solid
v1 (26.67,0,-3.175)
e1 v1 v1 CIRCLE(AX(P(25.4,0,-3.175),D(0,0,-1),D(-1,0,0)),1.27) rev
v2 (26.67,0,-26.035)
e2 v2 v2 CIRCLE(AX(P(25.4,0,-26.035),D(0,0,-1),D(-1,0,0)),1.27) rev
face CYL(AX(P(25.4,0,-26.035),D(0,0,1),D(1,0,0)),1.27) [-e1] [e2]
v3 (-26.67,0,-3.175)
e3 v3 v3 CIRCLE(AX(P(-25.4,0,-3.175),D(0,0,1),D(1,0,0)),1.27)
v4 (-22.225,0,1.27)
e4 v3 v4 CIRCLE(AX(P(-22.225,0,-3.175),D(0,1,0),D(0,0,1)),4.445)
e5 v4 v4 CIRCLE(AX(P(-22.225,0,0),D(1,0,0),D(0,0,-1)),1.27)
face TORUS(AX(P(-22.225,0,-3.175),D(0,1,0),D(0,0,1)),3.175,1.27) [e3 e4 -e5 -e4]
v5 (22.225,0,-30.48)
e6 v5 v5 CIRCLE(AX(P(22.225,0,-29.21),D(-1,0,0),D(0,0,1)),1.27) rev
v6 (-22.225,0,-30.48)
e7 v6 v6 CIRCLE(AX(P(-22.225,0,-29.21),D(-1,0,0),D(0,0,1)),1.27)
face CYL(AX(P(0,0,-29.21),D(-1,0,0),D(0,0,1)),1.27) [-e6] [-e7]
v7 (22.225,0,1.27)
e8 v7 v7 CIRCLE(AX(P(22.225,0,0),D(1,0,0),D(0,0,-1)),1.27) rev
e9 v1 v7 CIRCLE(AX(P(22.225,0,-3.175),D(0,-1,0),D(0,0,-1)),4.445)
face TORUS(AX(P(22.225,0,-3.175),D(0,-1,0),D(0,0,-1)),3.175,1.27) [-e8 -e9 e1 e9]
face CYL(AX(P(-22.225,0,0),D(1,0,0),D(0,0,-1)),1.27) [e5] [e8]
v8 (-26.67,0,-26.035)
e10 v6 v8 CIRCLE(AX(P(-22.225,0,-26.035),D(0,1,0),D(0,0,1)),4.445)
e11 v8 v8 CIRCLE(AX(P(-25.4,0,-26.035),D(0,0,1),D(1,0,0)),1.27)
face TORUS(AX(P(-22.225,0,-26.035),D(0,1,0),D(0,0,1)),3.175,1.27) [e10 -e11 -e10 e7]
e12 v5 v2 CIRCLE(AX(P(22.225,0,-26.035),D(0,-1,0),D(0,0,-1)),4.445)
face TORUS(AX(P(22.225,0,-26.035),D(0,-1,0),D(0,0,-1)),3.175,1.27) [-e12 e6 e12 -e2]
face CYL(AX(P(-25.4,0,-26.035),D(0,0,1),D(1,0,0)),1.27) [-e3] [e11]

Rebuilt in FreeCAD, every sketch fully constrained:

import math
import FreeCAD as App
import Part
import Sketcher
from FreeCAD import Vector
Q = App.Units.Quantity

doc = App.newDocument("Part")
body = doc.addObject("PartDesign::Body", "Body")

# Sketch on YZ plane
sketch1 = body.newObject("Sketcher::SketchObject", "Sketch")
sketch1.AttachmentSupport = (doc.getObject("YZ_Plane"), [""])
sketch1.MapMode = "FlatFace"
sketch1.addGeometry(Part.Circle(Vector(0, 0, 0), Vector(0, 0, 1), 1.3), False)
sketch1.addConstraint(Sketcher.Constraint("Coincident", 0, 3, -1, 1))
sketch1.addConstraint(Sketcher.Constraint("Diameter", 0, Q("0.1 in")))

# Sketch on XZ plane
sketch2 = body.newObject("Sketcher::SketchObject", "Sketch001")
sketch2.AttachmentSupport = (doc.getObject("XZ_Plane"), [""])
sketch2.MapMode = "FlatFace"
sketch2.addGeometry(Part.LineSegment(Vector(0, 0, 0), Vector(-22.2, 0, 0)), False)
sketch2.addGeometry(Part.ArcOfCircle(Part.Circle(Vector(-22.2, -3.2, 0), Vector(0, 0, 1), 3.2), math.radians(90), math.radians(180)), False)
sketch2.addGeometry(Part.LineSegment(Vector(-25.4, -3.2, 0), Vector(-25.4, -26, 0)), False)
sketch2.addGeometry(Part.ArcOfCircle(Part.Circle(Vector(-22.2, -26, 0), Vector(0, 0, 1), 3.2), math.radians(-180), math.radians(-90)), False)
sketch2.addGeometry(Part.LineSegment(Vector(-22.2, -29.2, 0), Vector(0, -29.2, 0)), False)
sketch2.addConstraint(Sketcher.Constraint("Tangent", 0, 2, 1, 1))
sketch2.addConstraint(Sketcher.Constraint("Tangent", 1, 2, 2, 1))
sketch2.addConstraint(Sketcher.Constraint("Tangent", 2, 2, 3, 1))
sketch2.addConstraint(Sketcher.Constraint("Tangent", 3, 2, 4, 1))
sketch2.addConstraint(Sketcher.Constraint("Horizontal", 0))
sketch2.addConstraint(Sketcher.Constraint("Vertical", 2))
sketch2.addConstraint(Sketcher.Constraint("Horizontal", 4))
sketch2.addConstraint(Sketcher.Constraint("Coincident", 0, 1, -1, 1))
sketch2.addConstraint(Sketcher.Constraint("Equal", 1, 3))
sketch2.addConstraint(Sketcher.Constraint("PointOnObject", 4, 2, -2))
sketch2.addConstraint(Sketcher.Constraint("DistanceY", 2, 2, 2, 1, Q("0.9 in")))
sketch2.addConstraint(Sketcher.Constraint("DistanceX", 1, 2, -1, 1, Q("1 in")))
sketch2.addConstraint(Sketcher.Constraint("Radius", 1, Q("0.125 in")))
doc.recompute()

additivepipe = body.newObject("PartDesign::AdditivePipe", "AdditivePipe")
additivepipe.Profile = sketch1
additivepipe.Spine = (sketch2, ["Edge1", "Edge2", "Edge3", "Edge4", "Edge5"])
doc.recompute()

mirrored = body.newObject("PartDesign::Mirrored", "Mirrored")
mirrored.Originals = [additivepipe]
mirrored.MirrorPlane = (doc.getObject("YZ_Plane"), [""])
body.Tip = mirrored

doc.recompute()
